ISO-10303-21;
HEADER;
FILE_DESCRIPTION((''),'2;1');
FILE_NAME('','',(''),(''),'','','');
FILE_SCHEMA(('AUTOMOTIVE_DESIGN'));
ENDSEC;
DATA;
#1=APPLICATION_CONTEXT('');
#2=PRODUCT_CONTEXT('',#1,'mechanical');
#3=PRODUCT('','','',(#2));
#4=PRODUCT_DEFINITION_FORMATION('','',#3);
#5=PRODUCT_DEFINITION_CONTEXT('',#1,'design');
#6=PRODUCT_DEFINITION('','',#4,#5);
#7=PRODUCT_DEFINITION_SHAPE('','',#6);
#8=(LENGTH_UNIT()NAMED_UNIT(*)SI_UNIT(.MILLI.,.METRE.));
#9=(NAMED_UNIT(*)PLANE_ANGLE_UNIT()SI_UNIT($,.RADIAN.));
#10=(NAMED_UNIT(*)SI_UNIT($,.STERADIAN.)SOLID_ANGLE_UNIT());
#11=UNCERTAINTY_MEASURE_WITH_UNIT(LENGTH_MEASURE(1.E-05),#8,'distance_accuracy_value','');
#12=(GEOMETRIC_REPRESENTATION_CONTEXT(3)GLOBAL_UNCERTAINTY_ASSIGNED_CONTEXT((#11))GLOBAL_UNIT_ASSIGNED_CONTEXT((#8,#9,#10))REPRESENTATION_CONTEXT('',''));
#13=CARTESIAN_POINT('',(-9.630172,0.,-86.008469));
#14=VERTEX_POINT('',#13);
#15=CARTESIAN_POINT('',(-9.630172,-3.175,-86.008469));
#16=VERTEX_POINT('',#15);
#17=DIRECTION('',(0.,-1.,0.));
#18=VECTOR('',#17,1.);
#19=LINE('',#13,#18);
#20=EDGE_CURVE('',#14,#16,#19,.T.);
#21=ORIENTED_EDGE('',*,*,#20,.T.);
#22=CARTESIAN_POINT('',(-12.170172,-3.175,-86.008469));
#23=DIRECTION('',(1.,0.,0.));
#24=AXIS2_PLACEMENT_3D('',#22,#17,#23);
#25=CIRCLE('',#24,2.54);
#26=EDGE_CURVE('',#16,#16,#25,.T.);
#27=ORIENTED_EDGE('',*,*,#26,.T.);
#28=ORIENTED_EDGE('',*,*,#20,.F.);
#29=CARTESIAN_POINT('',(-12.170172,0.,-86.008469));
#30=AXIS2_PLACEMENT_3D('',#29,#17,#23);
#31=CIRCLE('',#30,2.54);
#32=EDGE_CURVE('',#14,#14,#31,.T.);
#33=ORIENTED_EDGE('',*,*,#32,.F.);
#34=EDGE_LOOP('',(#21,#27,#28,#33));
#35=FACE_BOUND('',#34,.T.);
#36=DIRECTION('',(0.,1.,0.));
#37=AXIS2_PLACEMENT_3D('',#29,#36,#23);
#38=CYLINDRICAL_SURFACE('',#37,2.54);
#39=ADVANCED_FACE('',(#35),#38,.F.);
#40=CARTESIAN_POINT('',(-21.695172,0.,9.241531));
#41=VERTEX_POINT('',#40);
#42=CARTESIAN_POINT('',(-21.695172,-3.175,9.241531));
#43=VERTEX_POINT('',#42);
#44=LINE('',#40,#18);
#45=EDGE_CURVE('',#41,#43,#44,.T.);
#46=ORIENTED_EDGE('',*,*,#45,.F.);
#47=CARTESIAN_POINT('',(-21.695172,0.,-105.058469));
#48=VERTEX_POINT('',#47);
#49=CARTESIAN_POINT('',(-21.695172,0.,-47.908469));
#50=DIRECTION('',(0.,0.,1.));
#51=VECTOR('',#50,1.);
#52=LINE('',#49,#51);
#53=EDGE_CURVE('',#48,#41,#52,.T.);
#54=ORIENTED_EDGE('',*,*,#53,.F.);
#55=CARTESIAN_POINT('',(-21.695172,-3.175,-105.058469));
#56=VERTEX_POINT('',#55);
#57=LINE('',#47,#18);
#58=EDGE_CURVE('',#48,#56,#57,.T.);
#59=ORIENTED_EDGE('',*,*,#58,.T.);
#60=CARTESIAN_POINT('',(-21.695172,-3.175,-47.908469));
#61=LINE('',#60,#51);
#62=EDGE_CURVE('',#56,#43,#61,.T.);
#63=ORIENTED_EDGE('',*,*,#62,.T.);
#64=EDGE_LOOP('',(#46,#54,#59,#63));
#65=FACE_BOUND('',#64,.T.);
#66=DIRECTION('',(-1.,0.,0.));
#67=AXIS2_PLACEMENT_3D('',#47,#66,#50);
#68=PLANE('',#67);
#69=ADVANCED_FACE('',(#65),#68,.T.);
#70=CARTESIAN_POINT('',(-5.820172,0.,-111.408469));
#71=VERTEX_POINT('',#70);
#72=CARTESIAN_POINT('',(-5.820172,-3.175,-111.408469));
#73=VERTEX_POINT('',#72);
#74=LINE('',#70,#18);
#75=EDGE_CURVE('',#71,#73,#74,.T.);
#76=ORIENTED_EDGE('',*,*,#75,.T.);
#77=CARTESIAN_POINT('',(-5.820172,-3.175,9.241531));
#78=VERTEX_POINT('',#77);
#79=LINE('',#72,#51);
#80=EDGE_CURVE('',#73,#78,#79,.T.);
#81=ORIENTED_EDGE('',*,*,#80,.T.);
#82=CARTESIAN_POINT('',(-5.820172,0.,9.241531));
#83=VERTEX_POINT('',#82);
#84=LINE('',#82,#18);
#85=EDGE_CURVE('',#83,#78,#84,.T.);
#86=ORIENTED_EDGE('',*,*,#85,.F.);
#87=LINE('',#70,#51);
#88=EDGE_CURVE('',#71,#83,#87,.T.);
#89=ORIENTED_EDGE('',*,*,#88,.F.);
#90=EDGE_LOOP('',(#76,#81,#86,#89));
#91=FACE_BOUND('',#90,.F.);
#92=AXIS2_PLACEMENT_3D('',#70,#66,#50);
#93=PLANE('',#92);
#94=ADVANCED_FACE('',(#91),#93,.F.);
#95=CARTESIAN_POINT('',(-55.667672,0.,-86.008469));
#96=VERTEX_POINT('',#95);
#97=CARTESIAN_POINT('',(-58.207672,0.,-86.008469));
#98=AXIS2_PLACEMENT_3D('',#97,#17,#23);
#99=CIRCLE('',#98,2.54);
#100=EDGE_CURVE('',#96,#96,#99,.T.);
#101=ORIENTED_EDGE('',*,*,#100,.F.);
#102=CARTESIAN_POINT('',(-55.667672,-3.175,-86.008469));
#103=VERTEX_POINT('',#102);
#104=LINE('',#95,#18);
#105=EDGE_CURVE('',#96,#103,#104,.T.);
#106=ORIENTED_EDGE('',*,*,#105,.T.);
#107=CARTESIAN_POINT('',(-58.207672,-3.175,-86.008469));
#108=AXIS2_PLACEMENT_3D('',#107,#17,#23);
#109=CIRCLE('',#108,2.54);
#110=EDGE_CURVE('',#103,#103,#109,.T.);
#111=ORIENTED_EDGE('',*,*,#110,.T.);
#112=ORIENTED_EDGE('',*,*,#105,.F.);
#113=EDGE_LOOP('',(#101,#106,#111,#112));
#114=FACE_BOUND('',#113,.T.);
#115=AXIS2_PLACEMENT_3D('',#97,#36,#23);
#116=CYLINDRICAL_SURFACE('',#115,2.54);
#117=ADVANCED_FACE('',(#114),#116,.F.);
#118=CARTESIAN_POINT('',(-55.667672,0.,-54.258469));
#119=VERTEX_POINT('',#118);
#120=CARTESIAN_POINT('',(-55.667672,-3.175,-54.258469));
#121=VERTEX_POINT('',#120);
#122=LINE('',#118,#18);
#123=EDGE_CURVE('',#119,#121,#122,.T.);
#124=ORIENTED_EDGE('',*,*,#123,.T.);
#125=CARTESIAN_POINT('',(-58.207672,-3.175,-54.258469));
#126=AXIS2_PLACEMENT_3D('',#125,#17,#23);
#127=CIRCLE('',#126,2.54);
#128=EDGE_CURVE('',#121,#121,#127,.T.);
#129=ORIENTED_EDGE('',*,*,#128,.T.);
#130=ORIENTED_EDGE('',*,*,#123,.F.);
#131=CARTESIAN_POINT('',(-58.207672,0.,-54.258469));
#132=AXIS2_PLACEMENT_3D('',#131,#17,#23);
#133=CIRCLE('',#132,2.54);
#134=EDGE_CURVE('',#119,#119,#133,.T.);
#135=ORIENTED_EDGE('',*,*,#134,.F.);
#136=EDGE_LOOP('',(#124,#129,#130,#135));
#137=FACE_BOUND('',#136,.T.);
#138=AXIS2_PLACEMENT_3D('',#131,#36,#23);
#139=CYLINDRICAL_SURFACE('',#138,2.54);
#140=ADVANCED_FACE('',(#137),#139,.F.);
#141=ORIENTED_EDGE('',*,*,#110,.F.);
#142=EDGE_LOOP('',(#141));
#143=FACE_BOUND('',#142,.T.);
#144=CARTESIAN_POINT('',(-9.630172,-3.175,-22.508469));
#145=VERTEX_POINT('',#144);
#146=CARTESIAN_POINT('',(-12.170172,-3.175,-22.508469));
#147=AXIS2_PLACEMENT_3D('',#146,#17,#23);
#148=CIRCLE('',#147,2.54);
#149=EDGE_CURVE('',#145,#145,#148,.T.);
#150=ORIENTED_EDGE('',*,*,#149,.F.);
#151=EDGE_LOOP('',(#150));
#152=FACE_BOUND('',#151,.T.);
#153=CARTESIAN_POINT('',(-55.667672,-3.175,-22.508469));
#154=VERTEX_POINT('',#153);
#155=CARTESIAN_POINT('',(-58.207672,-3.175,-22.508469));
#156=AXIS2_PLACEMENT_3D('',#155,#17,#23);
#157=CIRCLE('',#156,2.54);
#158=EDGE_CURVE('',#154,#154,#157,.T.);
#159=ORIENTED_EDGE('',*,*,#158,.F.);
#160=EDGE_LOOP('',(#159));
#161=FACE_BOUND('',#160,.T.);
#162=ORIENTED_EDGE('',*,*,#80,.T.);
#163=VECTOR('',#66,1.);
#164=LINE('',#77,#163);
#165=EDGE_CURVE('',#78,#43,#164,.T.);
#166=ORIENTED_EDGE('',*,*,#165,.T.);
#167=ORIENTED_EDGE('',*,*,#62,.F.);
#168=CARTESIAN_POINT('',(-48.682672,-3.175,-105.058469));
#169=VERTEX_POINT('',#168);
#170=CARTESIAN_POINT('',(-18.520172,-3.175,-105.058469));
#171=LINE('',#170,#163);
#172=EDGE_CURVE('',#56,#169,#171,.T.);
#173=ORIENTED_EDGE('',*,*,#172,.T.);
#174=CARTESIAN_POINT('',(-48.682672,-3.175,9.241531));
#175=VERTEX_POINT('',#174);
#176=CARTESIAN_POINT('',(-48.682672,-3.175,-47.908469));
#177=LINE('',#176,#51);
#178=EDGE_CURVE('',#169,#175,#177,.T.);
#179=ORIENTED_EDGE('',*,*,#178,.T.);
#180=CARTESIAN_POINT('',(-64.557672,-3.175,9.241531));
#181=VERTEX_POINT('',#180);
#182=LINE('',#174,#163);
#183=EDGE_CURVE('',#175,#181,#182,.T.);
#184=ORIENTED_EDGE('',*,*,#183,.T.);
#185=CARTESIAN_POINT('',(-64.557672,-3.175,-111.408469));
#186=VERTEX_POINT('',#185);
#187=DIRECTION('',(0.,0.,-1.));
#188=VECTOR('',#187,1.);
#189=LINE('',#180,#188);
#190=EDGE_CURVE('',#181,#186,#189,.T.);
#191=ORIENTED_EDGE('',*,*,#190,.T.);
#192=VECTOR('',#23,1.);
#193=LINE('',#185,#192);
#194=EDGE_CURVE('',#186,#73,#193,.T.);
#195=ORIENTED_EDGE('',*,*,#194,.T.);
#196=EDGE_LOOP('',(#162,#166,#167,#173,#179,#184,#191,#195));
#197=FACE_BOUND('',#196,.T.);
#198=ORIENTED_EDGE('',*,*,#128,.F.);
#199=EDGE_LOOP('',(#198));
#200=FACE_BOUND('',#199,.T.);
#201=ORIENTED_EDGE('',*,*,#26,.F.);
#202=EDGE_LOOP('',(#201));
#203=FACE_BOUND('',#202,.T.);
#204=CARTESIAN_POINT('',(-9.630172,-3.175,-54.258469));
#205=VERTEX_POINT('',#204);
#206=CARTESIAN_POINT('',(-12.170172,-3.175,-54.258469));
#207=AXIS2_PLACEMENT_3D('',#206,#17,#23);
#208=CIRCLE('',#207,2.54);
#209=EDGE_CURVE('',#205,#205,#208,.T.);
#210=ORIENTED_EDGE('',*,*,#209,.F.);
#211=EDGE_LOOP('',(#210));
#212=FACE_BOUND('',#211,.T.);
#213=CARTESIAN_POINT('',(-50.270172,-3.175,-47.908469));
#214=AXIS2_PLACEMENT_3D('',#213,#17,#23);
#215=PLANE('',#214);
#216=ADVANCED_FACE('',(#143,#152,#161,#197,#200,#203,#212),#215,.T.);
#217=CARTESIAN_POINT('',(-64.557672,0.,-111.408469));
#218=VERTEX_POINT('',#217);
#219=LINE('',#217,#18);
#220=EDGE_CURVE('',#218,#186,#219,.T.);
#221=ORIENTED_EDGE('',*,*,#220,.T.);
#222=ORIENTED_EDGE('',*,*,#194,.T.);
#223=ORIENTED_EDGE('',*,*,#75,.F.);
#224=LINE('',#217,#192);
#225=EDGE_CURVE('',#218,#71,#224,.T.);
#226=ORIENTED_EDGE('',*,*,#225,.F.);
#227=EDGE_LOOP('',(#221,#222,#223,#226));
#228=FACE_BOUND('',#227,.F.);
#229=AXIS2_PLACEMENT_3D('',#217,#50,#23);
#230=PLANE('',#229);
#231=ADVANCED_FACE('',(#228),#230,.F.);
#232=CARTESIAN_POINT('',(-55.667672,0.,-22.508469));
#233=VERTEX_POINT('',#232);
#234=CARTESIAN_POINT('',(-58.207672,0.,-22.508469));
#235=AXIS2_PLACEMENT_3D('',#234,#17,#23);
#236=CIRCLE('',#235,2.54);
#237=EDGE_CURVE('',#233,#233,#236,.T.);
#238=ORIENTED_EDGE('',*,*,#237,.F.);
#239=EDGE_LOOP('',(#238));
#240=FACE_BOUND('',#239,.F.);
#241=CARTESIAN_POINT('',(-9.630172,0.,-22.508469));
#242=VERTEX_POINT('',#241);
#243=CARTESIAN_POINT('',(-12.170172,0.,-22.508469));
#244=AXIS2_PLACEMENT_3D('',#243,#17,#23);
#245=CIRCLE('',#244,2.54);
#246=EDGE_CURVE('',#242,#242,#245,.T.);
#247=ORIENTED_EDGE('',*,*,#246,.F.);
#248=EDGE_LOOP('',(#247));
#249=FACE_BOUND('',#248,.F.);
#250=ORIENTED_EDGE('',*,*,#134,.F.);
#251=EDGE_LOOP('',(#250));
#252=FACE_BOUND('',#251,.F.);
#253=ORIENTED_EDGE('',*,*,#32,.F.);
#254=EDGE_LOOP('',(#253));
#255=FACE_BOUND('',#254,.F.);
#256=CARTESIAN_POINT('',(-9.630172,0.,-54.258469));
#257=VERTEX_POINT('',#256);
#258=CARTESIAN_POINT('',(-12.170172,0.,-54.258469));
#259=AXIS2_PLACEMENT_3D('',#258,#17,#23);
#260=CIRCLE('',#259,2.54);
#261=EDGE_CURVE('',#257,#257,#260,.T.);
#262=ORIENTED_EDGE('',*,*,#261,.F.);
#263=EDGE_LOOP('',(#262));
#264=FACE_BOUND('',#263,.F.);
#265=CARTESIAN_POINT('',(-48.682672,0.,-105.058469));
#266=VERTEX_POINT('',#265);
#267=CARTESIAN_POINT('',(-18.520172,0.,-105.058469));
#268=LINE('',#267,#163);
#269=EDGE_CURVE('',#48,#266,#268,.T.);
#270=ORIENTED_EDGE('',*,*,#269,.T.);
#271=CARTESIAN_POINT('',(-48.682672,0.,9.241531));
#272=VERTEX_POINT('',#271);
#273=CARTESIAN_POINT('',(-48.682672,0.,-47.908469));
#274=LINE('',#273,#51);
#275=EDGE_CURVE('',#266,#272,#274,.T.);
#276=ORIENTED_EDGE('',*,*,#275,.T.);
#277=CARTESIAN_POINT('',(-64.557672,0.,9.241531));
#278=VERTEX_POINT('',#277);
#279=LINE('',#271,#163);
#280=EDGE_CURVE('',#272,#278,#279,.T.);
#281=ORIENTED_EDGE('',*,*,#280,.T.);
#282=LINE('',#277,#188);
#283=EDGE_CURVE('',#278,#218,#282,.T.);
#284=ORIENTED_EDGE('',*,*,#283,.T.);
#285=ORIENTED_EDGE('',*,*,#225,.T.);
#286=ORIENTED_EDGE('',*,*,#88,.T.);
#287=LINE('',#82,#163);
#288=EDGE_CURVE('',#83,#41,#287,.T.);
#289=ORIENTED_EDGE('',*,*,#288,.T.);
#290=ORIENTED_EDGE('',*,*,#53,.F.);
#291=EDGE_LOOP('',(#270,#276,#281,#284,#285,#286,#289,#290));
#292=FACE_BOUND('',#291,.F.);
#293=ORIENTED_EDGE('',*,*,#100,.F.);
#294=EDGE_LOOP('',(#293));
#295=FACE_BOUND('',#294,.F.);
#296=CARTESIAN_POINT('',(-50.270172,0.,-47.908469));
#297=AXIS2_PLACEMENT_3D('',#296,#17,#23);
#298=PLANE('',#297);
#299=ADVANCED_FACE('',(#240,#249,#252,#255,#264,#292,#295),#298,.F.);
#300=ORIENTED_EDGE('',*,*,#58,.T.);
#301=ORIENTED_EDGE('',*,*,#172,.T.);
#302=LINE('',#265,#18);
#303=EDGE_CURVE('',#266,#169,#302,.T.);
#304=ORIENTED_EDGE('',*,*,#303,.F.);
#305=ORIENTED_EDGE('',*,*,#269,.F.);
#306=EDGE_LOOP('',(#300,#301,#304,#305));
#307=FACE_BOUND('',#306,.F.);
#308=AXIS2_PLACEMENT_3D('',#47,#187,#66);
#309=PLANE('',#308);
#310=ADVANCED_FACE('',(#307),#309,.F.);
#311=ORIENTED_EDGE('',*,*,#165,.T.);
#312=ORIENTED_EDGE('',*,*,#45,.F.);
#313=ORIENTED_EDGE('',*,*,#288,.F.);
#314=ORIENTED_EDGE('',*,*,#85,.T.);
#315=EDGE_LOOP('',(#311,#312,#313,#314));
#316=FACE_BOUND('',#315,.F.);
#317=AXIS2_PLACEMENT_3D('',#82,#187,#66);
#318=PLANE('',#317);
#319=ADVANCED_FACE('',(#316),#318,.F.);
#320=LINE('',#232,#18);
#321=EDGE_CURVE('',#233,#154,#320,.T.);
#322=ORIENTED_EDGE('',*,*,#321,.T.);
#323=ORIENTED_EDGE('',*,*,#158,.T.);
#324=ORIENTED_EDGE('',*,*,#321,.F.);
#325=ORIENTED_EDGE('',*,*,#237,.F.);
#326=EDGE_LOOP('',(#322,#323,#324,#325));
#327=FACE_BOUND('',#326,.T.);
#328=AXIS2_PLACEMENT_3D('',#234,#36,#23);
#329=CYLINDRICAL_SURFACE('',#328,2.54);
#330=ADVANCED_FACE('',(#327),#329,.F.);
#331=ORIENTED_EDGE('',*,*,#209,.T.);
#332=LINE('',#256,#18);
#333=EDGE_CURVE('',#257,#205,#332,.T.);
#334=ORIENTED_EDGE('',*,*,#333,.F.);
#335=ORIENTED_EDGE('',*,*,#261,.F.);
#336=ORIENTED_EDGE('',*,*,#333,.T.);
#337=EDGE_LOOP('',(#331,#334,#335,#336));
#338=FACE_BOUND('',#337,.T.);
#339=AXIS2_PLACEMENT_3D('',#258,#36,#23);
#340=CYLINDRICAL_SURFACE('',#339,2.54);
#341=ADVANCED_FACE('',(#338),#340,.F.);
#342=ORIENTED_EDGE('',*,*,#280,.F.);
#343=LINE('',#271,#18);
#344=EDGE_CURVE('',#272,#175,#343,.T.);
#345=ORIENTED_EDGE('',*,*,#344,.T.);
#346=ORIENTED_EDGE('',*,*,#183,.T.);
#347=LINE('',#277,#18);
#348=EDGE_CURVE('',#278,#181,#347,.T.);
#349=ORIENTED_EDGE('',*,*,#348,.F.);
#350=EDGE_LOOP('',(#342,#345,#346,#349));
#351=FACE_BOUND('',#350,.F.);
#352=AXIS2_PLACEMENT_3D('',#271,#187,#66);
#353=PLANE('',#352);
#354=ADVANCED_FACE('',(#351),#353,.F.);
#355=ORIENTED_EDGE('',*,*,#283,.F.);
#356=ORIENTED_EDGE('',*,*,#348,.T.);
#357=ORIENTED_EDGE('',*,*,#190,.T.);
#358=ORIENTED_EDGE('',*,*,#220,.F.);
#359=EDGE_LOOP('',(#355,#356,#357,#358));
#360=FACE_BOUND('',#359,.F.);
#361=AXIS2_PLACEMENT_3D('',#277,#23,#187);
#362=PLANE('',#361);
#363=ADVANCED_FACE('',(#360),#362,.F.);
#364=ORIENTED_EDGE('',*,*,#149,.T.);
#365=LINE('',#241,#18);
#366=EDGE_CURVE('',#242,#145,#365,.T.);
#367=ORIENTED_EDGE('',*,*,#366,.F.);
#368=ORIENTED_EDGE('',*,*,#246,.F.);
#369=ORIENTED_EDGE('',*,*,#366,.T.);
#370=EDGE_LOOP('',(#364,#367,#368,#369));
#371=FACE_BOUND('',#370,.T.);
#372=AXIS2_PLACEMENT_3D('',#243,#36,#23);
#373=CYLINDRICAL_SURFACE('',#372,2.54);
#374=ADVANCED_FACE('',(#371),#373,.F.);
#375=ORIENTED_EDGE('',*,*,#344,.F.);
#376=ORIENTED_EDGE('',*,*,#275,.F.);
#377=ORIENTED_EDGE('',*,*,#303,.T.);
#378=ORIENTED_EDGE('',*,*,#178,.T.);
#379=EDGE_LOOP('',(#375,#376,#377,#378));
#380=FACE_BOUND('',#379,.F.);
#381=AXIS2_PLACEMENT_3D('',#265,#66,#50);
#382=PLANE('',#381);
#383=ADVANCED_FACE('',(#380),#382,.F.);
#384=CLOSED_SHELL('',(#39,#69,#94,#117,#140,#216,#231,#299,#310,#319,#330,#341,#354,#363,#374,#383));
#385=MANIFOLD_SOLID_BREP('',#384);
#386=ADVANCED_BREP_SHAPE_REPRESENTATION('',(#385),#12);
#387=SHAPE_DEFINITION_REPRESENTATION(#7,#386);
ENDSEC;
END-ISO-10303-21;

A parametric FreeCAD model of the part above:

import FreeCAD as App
import Part
import Sketcher
from FreeCAD import Vector
Q = App.Units.Quantity


def add_polygon(sketch, points):
    """Adds a closed chain of lines whose ends are joined by coincident constraints."""
    first, n = sketch.GeometryCount, len(points)
    for a, b in zip(points, points[1:] + points[:1]):
        sketch.addGeometry(Part.LineSegment(App.Vector(*a, 0), App.Vector(*b, 0)), False)
    for i in range(n):
        sketch.addConstraint(Sketcher.Constraint("Coincident", first + i, 2, first + (i + 1) % n, 1))

doc = App.newDocument("Part")
body = doc.addObject("PartDesign::Body", "Body")

# Sketch on XZ plane
sketch1 = body.newObject("Sketcher::SketchObject", "Sketch")
sketch1.AttachmentSupport = (doc.getObject("XZ_Plane"), [""])
sketch1.MapMode = "FlatFace"
add_polygon(sketch1, [(-48.7, -105.1), (-48.7, 9.2), (-64.6, 9.2), (-64.6, -111.4), (-5.8, -111.4), (-5.8, 9.2), (-21.7, 9.2), (-21.7, -105.1)])  # lines 0-7
sketch1.addGeometry(Part.Circle(Vector(-58.2, -86, 0), Vector(0, 0, 1), 2.5), False)  # 8
sketch1.addGeometry(Part.Circle(Vector(-12.2, -86, 0), Vector(0, 0, 1), 2.5), False)  # 9
sketch1.addGeometry(Part.Circle(Vector(-58.2, -54.3, 0), Vector(0, 0, 1), 2.5), False)  # 10
sketch1.addGeometry(Part.Circle(Vector(-58.2, -22.5, 0), Vector(0, 0, 1), 2.5), False)  # 11
sketch1.addGeometry(Part.Circle(Vector(-12.2, -54.3, 0), Vector(0, 0, 1), 2.5), False)  # 12
sketch1.addGeometry(Part.Circle(Vector(-12.2, -22.5, 0), Vector(0, 0, 1), 2.5), False)  # 13
sketch1.addConstraint([
    Sketcher.Constraint("Vertical", 0),
    Sketcher.Constraint("Horizontal", 1),
    Sketcher.Constraint("Vertical", 2),
    Sketcher.Constraint("Horizontal", 3),
    Sketcher.Constraint("Vertical", 4),
    Sketcher.Constraint("Horizontal", 5),
    Sketcher.Constraint("Vertical", 6),
    Sketcher.Constraint("Horizontal", 7),
    Sketcher.Constraint("Equal", 8, 9),
    Sketcher.Constraint("Equal", 9, 10),
    Sketcher.Constraint("Equal", 10, 11),
    Sketcher.Constraint("Equal", 11, 12),
    Sketcher.Constraint("Equal", 12, 13),
    Sketcher.Constraint("Horizontal", 8, 3, 9, 3),
    Sketcher.Constraint("Horizontal", 10, 3, 12, 3),
    Sketcher.Constraint("Horizontal", 11, 3, 13, 3),
    Sketcher.Constraint("Horizontal", 1, 2, 4, 2),
    Sketcher.Constraint("Vertical", 8, 3, 10, 3),
    Sketcher.Constraint("Vertical", 10, 3, 11, 3),
    Sketcher.Constraint("Vertical", 9, 3, 12, 3),
    Sketcher.Constraint("Vertical", 12, 3, 13, 3),
    Sketcher.Constraint("Equal", 1, 5),
    Sketcher.Constraint("Diameter", 8, Q("0.2 in")),
    Sketcher.Constraint("DistanceY", 0, 1, 0, 2, Q("4.5 in")),
    Sketcher.Constraint("DistanceY", 2, 2, 8, 3, Q("1 in")),
    Sketcher.Constraint("DistanceY", 6, 2, 12, 3, Q("2 in")),
    Sketcher.Constraint("DistanceY", 2, 2, 2, 1, Q("4.75 in")),
    Sketcher.Constraint("DistanceY", 8, 3, 11, 3, Q("2.5 in")),
    Sketcher.Constraint("DistanceX", 1, 2, 1, 1, Q("0.625 in")),
    Sketcher.Constraint("DistanceX", 3, 1, 3, 2, Q("2.3125 in")),
    Sketcher.Constraint("DistanceX", 1, 2, 11, 3, Q("0.25 in")),
    Sketcher.Constraint("DistanceX", 9, 3, 3, 2, Q("0.25 in")),
    Sketcher.Constraint("DistanceY", 8, 3, -1, 1, 86.008469),
    Sketcher.Constraint("DistanceX", 0, 2, -1, 1, 48.682672),
])
pad1 = body.newObject("PartDesign::Pad", "Pad")
pad1.Profile = sketch1
pad1.Length = Q("0.125 in")

doc.recompute()
